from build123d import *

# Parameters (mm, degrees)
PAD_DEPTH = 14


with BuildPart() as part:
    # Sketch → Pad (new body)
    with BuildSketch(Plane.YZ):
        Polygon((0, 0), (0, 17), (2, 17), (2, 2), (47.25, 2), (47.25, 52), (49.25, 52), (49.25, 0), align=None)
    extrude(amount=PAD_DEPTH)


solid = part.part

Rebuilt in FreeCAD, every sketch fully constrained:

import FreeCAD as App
import Part
import Sketcher

V = App.Vector

doc = App.newDocument("Part")
body = doc.addObject("PartDesign::Body", "Body")

sketch1 = body.newObject("Sketcher::SketchObject", "Sketch")
sketch1.AttachmentSupport = (doc.getObject("YZ_Plane"), [""])
sketch1.MapMode = "FlatFace"
sketch1.addGeometry([
    Part.LineSegment(V(0, 17, 0), V(0, 0, 0)),
    Part.LineSegment(V(0, 0, 0), V(49.25, 0, 0)),
    Part.LineSegment(V(49.25, 0, 0), V(49.25, 52, 0)),
    Part.LineSegment(V(49.25, 52, 0), V(47.25, 52, 0)),
    Part.LineSegment(V(47.25, 52, 0), V(47.25, 2, 0)),
    Part.LineSegment(V(47.25, 2, 0), V(2, 2, 0)),
    Part.LineSegment(V(2, 2, 0), V(2, 17, 0)),
    Part.LineSegment(V(2, 17, 0), V(0, 17, 0)),
], False)
sketch1.addConstraint([
    Sketcher.Constraint("Coincident", 0, 2, 1, 1),
    Sketcher.Constraint("Coincident", 1, 2, 2, 1),
    Sketcher.Constraint("Coincident", 2, 2, 3, 1),
    Sketcher.Constraint("Coincident", 3, 2, 4, 1),
    Sketcher.Constraint("Coincident", 4, 2, 5, 1),
    Sketcher.Constraint("Coincident", 5, 2, 6, 1),
    Sketcher.Constraint("Coincident", 6, 2, 7, 1),
    Sketcher.Constraint("Coincident", 7, 2, 0, 1),
    Sketcher.Constraint("Vertical", 0),
    Sketcher.Constraint("Horizontal", 1),
    Sketcher.Constraint("Vertical", 2),
    Sketcher.Constraint("Horizontal", 3),
    Sketcher.Constraint("Vertical", 4),
    Sketcher.Constraint("Horizontal", 5),
    Sketcher.Constraint("Vertical", 6),
    Sketcher.Constraint("Horizontal", 7),
    Sketcher.Constraint("Coincident", 0, 2, -1, 1),
    Sketcher.Constraint("Equal", 3, 7),
    Sketcher.Constraint("DistanceX", 3, 2, 3, 1, 2.0),
    Sketcher.Constraint("DistanceY", 0, 2, 0, 1, 17.0),
    Sketcher.Constraint("DistanceY", 2, 1, 2, 2, 52.0),
    Sketcher.Constraint("DistanceY", 4, 2, 4, 1, 50.0),
    Sketcher.Constraint("DistanceX", 1, 1, 1, 2, 49.25),
])
pad1 = body.newObject("PartDesign::Pad", "Pad")
pad1.Profile = sketch1
pad1.Length = 14

doc.recompute()
